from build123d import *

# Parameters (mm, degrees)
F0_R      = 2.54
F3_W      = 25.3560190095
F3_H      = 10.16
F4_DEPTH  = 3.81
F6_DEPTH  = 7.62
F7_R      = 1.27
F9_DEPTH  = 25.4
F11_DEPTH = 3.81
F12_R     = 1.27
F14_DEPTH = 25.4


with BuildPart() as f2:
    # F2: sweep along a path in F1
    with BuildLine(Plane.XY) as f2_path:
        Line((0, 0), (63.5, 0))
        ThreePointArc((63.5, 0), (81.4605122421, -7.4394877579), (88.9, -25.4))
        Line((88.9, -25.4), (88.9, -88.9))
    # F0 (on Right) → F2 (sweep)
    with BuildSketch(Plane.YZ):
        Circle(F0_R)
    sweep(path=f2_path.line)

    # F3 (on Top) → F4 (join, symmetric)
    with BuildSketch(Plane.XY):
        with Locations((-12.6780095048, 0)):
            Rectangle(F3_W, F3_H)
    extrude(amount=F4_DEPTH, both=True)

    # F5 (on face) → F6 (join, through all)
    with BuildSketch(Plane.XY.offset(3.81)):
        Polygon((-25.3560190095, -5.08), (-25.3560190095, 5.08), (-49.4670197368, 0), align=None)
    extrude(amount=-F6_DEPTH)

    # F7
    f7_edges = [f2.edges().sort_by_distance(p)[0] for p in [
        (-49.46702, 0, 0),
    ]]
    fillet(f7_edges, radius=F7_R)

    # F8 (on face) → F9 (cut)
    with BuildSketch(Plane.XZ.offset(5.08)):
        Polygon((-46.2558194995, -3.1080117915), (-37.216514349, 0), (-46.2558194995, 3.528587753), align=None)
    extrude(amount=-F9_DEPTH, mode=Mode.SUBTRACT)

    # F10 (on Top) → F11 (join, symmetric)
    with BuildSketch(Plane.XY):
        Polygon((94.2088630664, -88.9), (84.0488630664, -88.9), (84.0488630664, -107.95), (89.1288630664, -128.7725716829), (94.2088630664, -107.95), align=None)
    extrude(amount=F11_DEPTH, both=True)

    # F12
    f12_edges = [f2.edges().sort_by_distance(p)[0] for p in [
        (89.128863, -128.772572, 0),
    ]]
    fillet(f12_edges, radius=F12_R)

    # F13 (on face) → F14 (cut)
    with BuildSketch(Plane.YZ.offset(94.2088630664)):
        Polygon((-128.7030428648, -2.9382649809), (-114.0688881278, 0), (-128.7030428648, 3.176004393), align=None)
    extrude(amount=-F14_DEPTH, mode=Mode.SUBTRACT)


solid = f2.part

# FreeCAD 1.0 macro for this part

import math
import FreeCAD as App
import Part
import Sketcher
from FreeCAD import Vector
Q = App.Units.Quantity


def edges_at(feature, points):
    """Names of the edges that pass closest to the given points."""
    edges = feature.Shape.Edges
    near = lambda p: min(range(len(edges)), key=lambda i: edges[i].distToShape(Part.Vertex(*p))[0])
    return sorted({f"Edge{near(p) + 1}" for p in points})


def add_polygon(sketch, points):
    """Adds a closed chain of lines whose ends are joined by coincident constraints."""
    first, n = sketch.GeometryCount, len(points)
    for a, b in zip(points, points[1:] + points[:1]):
        sketch.addGeometry(Part.LineSegment(App.Vector(*a, 0), App.Vector(*b, 0)), False)
    for i in range(n):
        sketch.addConstraint(Sketcher.Constraint("Coincident", first + i, 2, first + (i + 1) % n, 1))

doc = App.newDocument("Part")
body = doc.addObject("PartDesign::Body", "Body")

# Sketch on YZ plane
sketch1 = body.newObject("Sketcher::SketchObject", "Sketch")
sketch1.AttachmentSupport = (doc.getObject("YZ_Plane"), [""])
sketch1.MapMode = "FlatFace"
sketch1.addGeometry(Part.Circle(Vector(0, 0, 0), Vector(0, 0, 1), 2.54), False)
sketch1.addConstraint([
    Sketcher.Constraint("Coincident", 0, 3, -1, 1),
    Sketcher.Constraint("Diameter", 0, Q("0.2 in")),
])

# Sketch on XY plane
sketch2 = body.newObject("Sketcher::SketchObject", "Sketch001")
sketch2.AttachmentSupport = (doc.getObject("XY_Plane"), [""])
sketch2.MapMode = "FlatFace"
sketch2.addGeometry([
    Part.LineSegment(Vector(0, 0, 0), Vector(63.5, 0, 0)),
    Part.ArcOfCircle(Part.Circle(Vector(63.5, -25.4, 0), Vector(0, 0, 1), 25.4), math.radians(0), math.radians(90)),
    Part.LineSegment(Vector(88.9, -25.4, 0), Vector(88.9, -88.9, 0)),
], False)
sketch2.addConstraint([
    Sketcher.Constraint("Tangent", 0, 2, 1, 2),
    Sketcher.Constraint("Tangent", 1, 1, 2, 1),
    Sketcher.Constraint("Horizontal", 0),
    Sketcher.Constraint("Vertical", 2),
    Sketcher.Constraint("Coincident", 0, 1, -1, 1),
    Sketcher.Constraint("Equal", 0, 2),
    Sketcher.Constraint("Radius", 1, Q("1 in")),
    Sketcher.Constraint("DistanceX", 0, 1, 0, 2, Q("2.5 in")),
])
doc.recompute()

additivepipe = body.newObject("PartDesign::AdditivePipe", "AdditivePipe")
additivepipe.Profile = sketch1
additivepipe.Spine = (sketch2, ["Edge1", "Edge2", "Edge3"])

# Sketch on XY plane
sketch3 = body.newObject("Sketcher::SketchObject", "Sketch002")
sketch3.AttachmentSupport = (doc.getObject("XY_Plane"), [""])
sketch3.MapMode = "FlatFace"
add_polygon(sketch3, [(-25.356019, 5.08), (-25.356019, -5.08), (0, -5.08), (0, 5.08)])  # lines 0-3
sketch3.addConstraint([
    Sketcher.Constraint("Vertical", 0),
    Sketcher.Constraint("Horizontal", 1),
    Sketcher.Constraint("Vertical", 2),
    Sketcher.Constraint("Horizontal", 3),
    Sketcher.Constraint("Symmetric", 1, 2, 2, 2, -1, 1),
    Sketcher.Constraint("DistanceY", 0, 2, 0, 1, Q("0.4 in")),
    Sketcher.Constraint("DistanceX", 1, 1, 1, 2, Q("25.356019 mm")),
])
pad1 = body.newObject("PartDesign::Pad", "Pad")
pad1.Profile = sketch3
pad1.Length = Q("0.3 in")
pad1.Midplane = True

# Sketch on XY plane
sketch4 = body.newObject("Sketcher::SketchObject", "Sketch003")
sketch4.AttachmentSupport = (doc.getObject("XY_Plane"), [""])
sketch4.MapMode = "FlatFace"
sketch4.AttachmentOffset = App.Placement(Vector(0, 0, 0.15 * 25.4), App.Rotation())
add_polygon(sketch4, [(-25.356019, -5.08), (-25.356019, 5.08), (-49.46702, 0)])  # lines 0-2
sketch4.addConstraint([
    Sketcher.Constraint("Vertical", 0),
    Sketcher.Constraint("PointOnObject", 1, 2, -1),
    Sketcher.Constraint("Equal", 1, 2),
    Sketcher.Constraint("DistanceY", 0, 1, 0, 2, Q("0.4 in")),
    Sketcher.Constraint("DistanceX", 1, 2, 0, 2, Q("24.111001 mm")),
    Sketcher.Constraint("DistanceX", 0, 2, -1, 1, Q("25.356019 mm")),
])
pad2 = body.newObject("PartDesign::Pad", "Pad001")
pad2.Profile = sketch4
pad2.Length = Q("0.3 in")
pad2.Reversed = True
doc.recompute()

fillet = body.newObject("PartDesign::Fillet", "Fillet")
fillet.Base = (pad2, edges_at(pad2, [(-49.467, 0, 0)]))
fillet.Radius = Q("0.05 in")

# Sketch on XZ plane
sketch5 = body.newObject("Sketcher::SketchObject", "Sketch004")
sketch5.AttachmentSupport = (doc.getObject("XZ_Plane"), [""])
sketch5.MapMode = "FlatFace"
sketch5.AttachmentOffset = App.Placement(Vector(0, 0, 0.2 * 25.4), App.Rotation())
add_polygon(sketch5, [(-46.255819, -3.108012), (-37.216514, 0), (-46.255819, 3.528588)])  # lines 0-2
sketch5.addConstraint([
    Sketcher.Constraint("Vertical", 2),
    Sketcher.Constraint("PointOnObject", 0, 2, -1),
    Sketcher.Constraint("DistanceY", 2, 2, 2, 1, Q("6.6366 mm")),
    Sketcher.Constraint("Distance", 0, Q("9.558702 mm")),
    Sketcher.Constraint("DistanceX", 1, 2, -1, 1, Q("46.255819 mm")),
    Sketcher.Constraint("DistanceY", 2, 2, -1, 1, Q("3.108012 mm")),
])
pocket1 = body.newObject("PartDesign::Pocket", "Pocket")
pocket1.Profile = sketch5
pocket1.Length = Q("1 in")

# Sketch on XY plane
sketch6 = body.newObject("Sketcher::SketchObject", "Sketch005")
sketch6.AttachmentSupport = (doc.getObject("XY_Plane"), [""])
sketch6.MapMode = "FlatFace"
add_polygon(sketch6, [(94.208863, -88.9), (84.048863, -88.9), (84.048863, -107.95), (89.128863, -128.772572), (94.208863, -107.95)])  # lines 0-4
sketch6.addConstraint([
    Sketcher.Constraint("Horizontal", 0),
    Sketcher.Constraint("Vertical", 1),
    Sketcher.Constraint("Vertical", 4),
    Sketcher.Constraint("Horizontal", 1, 2, 3, 2),
    Sketcher.Constraint("Equal", 2, 3),
    Sketcher.Constraint("DistanceX", 0, 2, 0, 1, Q("0.4 in")),
    Sketcher.Constraint("DistanceY", 1, 2, 1, 1, Q("0.75 in")),
    Sketcher.Constraint("DistanceY", 0, 2, -1, 1, Q("3.5 in")),
    Sketcher.Constraint("Distance", 2, Q("21.433289 mm")),
    Sketcher.Constraint("DistanceX", -1, 1, 0, 2, Q("84.048863 mm")),
])
pad3 = body.newObject("PartDesign::Pad", "Pad002")
pad3.Profile = sketch6
pad3.Length = Q("0.3 in")
pad3.Midplane = True
doc.recompute()

fillet2 = body.newObject("PartDesign::Fillet", "Fillet001")
fillet2.Base = (pad3, edges_at(pad3, [(89.129, -128.773, 0)]))
fillet2.Radius = Q("0.05 in")

# Sketch on YZ plane
sketch7 = body.newObject("Sketcher::SketchObject", "Sketch006")
sketch7.AttachmentSupport = (doc.getObject("YZ_Plane"), [""])
sketch7.MapMode = "FlatFace"
sketch7.AttachmentOffset = App.Placement(Vector(0, 0, 94.208863), App.Rotation())
add_polygon(sketch7, [(-128.703043, -2.938265), (-114.068888, 0), (-128.703043, 3.176004)])  # lines 0-2
sketch7.addConstraint([
    Sketcher.Constraint("Vertical", 2),
    Sketcher.Constraint("PointOnObject", 0, 2, -1),
    Sketcher.Constraint("DistanceY", 2, 2, 2, 1, Q("6.114269 mm")),
    Sketcher.Constraint("Distance", 1, Q("14.974829 mm")),
    Sketcher.Constraint("DistanceX", 0, 2, -1, 1, Q("114.068888 mm")),
    Sketcher.Constraint("Distance", 0, Q("14.926215 mm")),
])
pocket2 = body.newObject("PartDesign::Pocket", "Pocket001")
pocket2.Profile = sketch7
pocket2.Length = Q("1 in")

doc.recompute()
